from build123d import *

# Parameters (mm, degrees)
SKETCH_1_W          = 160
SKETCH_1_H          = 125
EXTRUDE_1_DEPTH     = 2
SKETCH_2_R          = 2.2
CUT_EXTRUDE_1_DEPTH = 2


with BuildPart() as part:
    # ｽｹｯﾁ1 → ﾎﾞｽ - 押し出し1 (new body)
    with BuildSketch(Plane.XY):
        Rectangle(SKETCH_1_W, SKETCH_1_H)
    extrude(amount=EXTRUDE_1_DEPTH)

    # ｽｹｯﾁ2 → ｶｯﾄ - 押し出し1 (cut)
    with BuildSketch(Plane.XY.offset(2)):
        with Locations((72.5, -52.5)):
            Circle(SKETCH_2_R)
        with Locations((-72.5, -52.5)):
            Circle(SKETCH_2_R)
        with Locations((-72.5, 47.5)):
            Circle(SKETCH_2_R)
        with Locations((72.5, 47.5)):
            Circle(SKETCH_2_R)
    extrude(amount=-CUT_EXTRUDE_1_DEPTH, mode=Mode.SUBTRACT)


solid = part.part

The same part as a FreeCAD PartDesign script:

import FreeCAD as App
import Part
import Sketcher

V = App.Vector
Q = App.Units.Quantity

doc = App.newDocument("Part")
body = doc.addObject("PartDesign::Body", "Body")

# Sketch on XY plane
sketch1 = body.newObject("Sketcher::SketchObject", "Sketch")
sketch1.AttachmentSupport = (doc.getObject("XY_Plane"), [""])
sketch1.MapMode = "FlatFace"
sketch1.addGeometry([
    Part.LineSegment(V(-80, 62, 0), V(-80, -62, 0)),
    Part.LineSegment(V(-80, -62, 0), V(80, -62, 0)),
    Part.LineSegment(V(80, -62, 0), V(80, 62, 0)),
    Part.LineSegment(V(80, 62, 0), V(-80, 62, 0)),
], False)
sketch1.addConstraint([
    Sketcher.Constraint("Coincident", 0, 2, 1, 1),
    Sketcher.Constraint("Coincident", 1, 2, 2, 1),
    Sketcher.Constraint("Coincident", 2, 2, 3, 1),
    Sketcher.Constraint("Coincident", 3, 2, 0, 1),
    Sketcher.Constraint("Vertical", 0),
    Sketcher.Constraint("Horizontal", 1),
    Sketcher.Constraint("Vertical", 2),
    Sketcher.Constraint("Horizontal", 3),
    Sketcher.Constraint("Symmetric", 0, 2, 2, 2, -1, 1),
    Sketcher.Constraint("DistanceX", 1, 1, 1, 2, Q("160 mm")),
    Sketcher.Constraint("DistanceY", 0, 2, 0, 1, Q("125 mm")),
])
pad1 = body.newObject("PartDesign::Pad", "Pad")
pad1.Profile = sketch1
pad1.Length = 2

# Sketch on XY plane
sketch2 = body.newObject("Sketcher::SketchObject", "Sketch001")
sketch2.AttachmentSupport = (doc.getObject("XY_Plane"), [""])
sketch2.MapMode = "FlatFace"
sketch2.AttachmentOffset = App.Placement(V(0, 0, 2), App.Rotation())
sketch2.addGeometry([
    Part.Circle(V(72.5, -52.5, 0), V(0, 0, 1), 2.2),
    Part.Circle(V(-72.5, -52.5, 0), V(0, 0, 1), 2.2),
    Part.Circle(V(-72.5, 47.5, 0), V(0, 0, 1), 2.2),
    Part.Circle(V(72.5, 47.5, 0), V(0, 0, 1), 2.2),
], False)
sketch2.addConstraint([
    Sketcher.Constraint("Equal", 0, 1),
    Sketcher.Constraint("Equal", 1, 2),
    Sketcher.Constraint("Equal", 2, 3),
    Sketcher.Constraint("Symmetric", 0, 3, 1, 3, -2),
    Sketcher.Constraint("Symmetric", 2, 3, 3, 3, -2),
    Sketcher.Constraint("Vertical", 1, 3, 2, 3),
    Sketcher.Constraint("Diameter", 0, Q("4.4 mm")),
    Sketcher.Constraint("DistanceX", 1, 3, 0, 3, Q("145 mm")),
    Sketcher.Constraint("DistanceY", 1, 3, 2, 3, Q("100 mm")),
    Sketcher.Constraint("DistanceY", 0, 3, -1, 1, Q("52.5 mm")),
])
pocket1 = body.newObject("PartDesign::Pocket", "Pocket")
pocket1.Profile = sketch2
pocket1.Length = 2

doc.recompute()
